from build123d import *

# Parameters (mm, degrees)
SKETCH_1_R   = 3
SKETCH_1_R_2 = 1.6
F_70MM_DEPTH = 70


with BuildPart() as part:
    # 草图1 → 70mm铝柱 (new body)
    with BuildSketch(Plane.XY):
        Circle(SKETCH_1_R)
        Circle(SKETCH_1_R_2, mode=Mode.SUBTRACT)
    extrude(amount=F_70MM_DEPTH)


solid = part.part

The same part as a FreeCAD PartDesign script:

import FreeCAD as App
import Part
import Sketcher
from FreeCAD import Vector

doc = App.newDocument("Part")
body = doc.addObject("PartDesign::Body", "Body")

# Sketch on XY plane
sketch1 = doc.addObject("Sketcher::SketchObject", "Sketch")
body.addObject(sketch1)
sketch1.AttachmentSupport = (doc.XY_Plane, [""])
sketch1.MapMode = "FlatFace"
sketch1.addGeometry([
    Part.Circle(Vector(0, 0, 0), Vector(0, 0, 1), 3),
    Part.Circle(Vector(0, 0, 0), Vector(0, 0, 1), 1.6),
], False)
sketch1.addConstraint([
    Sketcher.Constraint("Coincident", 0, 3, -1, 1),
    Sketcher.Constraint("Coincident", 1, 3, -1, 1),
    Sketcher.Constraint("Diameter", 0, 6.0),
    Sketcher.Constraint("Diameter", 1, 3.2),
])
pad1 = doc.addObject("PartDesign::Pad", "Pad")
body.addObject(pad1)
pad1.Profile = sketch1
pad1.Length = 70

doc.recompute()
